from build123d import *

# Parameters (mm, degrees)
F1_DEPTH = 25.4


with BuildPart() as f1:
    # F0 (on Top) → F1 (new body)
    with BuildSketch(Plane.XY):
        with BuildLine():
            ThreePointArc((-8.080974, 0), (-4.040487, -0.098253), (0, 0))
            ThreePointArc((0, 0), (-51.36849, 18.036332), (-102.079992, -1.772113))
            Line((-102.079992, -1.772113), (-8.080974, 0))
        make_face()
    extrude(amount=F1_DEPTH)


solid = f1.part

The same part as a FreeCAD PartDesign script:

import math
import FreeCAD as App
import Part
import Sketcher
from FreeCAD import Vector
Q = App.Units.Quantity

doc = App.newDocument("Part")
params = doc.addObject("Spreadsheet::Sheet", "Params")
for row, (alias, value) in enumerate([
    ("pad1_length", "1 in"),
], start=1):
    params.set(f"A{row}", alias)
    params.set(f"B{row}", "=" + value)
    params.setAlias(f"B{row}", alias)

body = doc.addObject("PartDesign::Body", "Body")

sketch1 = body.newObject("Sketcher::SketchObject", "Sketch")
sketch1.AttachmentSupport = (doc.getObject("XY_Plane"), [""])
sketch1.MapMode = "FlatFace"
sketch1.addGeometry([
    Part.ArcOfCircle(Part.Circle(Vector(-4, 83, 0), Vector(0, 0, 1), 83), math.radians(-92.79), math.radians(-87.21)),
    Part.ArcOfCircle(Part.Circle(Vector(-50, -60, 0), Vector(0, 0, 1), 78), math.radians(50), math.radians(132)),
    Part.LineSegment(Vector(-102, -2, 0), Vector(-8, 0, 0)),
], False)
sketch1.addConstraint([
    Sketcher.Constraint("Coincident", 0, 2, 1, 1),
    Sketcher.Constraint("Coincident", 1, 2, 2, 1),
    Sketcher.Constraint("Coincident", 2, 2, 0, 1),
    Sketcher.Constraint("Coincident", 0, 2, -1, 1),
    Sketcher.Constraint("PointOnObject", 2, 2, -1),
    Sketcher.Constraint("Radius", 1, Q("78.308942 mm")),
    Sketcher.Constraint("Radius", 0, Q("83.128194 mm")),
    Sketcher.Constraint("DistanceY", 1, 3, 1, 2, Q("58.4887 mm")),
    Sketcher.Constraint("Distance", 2, Q("94.015721 mm")),
    Sketcher.Constraint("DistanceY", -1, 1, 0, 3, Q("83.029941 mm")),
])
pad1 = body.newObject("PartDesign::Pad", "Pad")
pad1.Profile = sketch1
pad1.setExpression("Length", "Params.pad1_length")

doc.recompute()
